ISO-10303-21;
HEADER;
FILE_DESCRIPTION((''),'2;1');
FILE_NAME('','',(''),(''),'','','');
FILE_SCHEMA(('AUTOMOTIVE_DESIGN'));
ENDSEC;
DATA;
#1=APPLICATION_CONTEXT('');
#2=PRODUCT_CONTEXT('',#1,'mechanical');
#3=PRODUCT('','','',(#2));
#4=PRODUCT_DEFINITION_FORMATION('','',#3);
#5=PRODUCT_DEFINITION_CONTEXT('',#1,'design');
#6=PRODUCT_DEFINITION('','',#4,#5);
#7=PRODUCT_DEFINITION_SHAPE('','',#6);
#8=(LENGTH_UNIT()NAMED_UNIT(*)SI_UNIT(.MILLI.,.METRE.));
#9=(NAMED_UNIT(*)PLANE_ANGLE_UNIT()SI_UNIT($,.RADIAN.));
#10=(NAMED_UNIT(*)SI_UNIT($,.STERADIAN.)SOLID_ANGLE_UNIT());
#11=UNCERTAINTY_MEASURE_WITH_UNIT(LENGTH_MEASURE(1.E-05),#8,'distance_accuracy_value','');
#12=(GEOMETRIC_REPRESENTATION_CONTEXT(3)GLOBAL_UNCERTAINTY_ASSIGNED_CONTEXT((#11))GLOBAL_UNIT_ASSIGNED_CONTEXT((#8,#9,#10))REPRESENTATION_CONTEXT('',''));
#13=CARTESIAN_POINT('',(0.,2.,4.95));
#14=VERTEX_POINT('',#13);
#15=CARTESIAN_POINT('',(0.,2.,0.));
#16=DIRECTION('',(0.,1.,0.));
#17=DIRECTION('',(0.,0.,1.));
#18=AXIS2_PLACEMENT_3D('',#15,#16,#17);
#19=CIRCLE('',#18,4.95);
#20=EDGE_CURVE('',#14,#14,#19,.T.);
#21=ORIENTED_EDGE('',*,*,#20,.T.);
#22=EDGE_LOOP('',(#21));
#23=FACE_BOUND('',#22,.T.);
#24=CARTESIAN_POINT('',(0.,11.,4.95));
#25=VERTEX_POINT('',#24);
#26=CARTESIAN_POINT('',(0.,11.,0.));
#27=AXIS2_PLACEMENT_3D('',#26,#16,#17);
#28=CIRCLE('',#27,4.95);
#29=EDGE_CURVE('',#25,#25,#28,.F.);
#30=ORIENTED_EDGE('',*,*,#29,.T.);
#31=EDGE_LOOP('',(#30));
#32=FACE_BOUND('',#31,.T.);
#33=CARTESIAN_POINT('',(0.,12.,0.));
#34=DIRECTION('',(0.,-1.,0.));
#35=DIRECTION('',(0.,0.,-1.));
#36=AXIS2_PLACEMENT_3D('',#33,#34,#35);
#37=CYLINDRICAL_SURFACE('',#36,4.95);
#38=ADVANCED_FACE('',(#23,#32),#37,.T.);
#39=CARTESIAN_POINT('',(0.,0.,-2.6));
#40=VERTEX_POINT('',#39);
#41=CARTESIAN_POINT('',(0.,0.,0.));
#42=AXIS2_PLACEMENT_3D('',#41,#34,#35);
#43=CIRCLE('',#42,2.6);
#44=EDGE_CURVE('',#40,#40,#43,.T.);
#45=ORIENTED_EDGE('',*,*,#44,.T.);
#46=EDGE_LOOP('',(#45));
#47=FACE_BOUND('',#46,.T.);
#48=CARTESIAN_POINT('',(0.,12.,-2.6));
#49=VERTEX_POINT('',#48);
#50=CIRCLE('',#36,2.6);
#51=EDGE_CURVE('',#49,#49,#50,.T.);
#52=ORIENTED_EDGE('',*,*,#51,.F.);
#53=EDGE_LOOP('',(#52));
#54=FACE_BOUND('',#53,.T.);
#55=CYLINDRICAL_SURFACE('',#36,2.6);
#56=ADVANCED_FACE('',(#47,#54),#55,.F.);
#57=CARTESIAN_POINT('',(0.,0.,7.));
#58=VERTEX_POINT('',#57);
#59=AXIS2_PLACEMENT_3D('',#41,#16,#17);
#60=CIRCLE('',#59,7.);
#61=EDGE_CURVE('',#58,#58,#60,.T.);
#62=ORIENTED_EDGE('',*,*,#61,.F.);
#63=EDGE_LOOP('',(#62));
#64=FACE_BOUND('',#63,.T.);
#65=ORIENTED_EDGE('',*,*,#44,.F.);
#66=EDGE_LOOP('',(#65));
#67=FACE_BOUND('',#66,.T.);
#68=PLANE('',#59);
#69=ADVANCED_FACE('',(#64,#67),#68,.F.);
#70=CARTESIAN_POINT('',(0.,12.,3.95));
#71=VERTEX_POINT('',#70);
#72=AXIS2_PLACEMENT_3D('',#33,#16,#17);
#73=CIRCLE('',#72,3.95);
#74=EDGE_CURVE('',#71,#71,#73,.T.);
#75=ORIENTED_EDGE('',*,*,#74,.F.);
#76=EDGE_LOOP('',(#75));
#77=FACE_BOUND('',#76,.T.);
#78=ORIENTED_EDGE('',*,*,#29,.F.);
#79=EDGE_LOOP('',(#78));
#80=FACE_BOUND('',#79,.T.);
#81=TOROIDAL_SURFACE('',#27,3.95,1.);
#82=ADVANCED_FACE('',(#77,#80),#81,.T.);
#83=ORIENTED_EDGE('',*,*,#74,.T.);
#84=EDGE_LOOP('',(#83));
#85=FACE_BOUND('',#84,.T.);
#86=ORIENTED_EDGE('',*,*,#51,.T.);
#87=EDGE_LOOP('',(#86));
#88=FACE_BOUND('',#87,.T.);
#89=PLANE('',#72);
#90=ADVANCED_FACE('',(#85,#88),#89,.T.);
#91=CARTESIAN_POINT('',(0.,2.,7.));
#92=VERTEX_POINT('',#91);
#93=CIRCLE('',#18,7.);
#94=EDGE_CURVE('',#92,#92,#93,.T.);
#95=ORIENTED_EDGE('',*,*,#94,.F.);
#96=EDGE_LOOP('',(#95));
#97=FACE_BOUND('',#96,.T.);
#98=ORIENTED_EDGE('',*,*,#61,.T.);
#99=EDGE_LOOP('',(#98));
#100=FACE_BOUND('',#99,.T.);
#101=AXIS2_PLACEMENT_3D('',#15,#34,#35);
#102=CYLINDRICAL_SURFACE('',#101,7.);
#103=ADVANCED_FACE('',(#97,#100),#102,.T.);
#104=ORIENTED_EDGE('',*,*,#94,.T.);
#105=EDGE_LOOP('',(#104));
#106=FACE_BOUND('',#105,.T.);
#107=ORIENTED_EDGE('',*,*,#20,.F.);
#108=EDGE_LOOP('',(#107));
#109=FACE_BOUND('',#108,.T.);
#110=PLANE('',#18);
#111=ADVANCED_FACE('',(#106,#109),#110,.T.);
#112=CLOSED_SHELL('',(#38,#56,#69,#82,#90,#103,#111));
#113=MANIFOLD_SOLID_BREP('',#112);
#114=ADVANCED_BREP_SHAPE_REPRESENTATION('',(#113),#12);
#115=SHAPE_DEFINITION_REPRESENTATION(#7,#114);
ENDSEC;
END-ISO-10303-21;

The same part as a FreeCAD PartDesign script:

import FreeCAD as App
import Part
import Sketcher
from FreeCAD import Vector


def edges_at(feature, points):
    """Names of the edges that pass closest to the given points."""
    edges = feature.Shape.Edges
    near = lambda p: min(range(len(edges)), key=lambda i: edges[i].distToShape(Part.Vertex(*p))[0])
    return sorted({f"Edge{near(p) + 1}" for p in points})

doc = App.newDocument("Part")
body = doc.addObject("PartDesign::Body", "Body")

# Sketch on XZ plane
sketch1 = body.newObject("Sketcher::SketchObject", "Sketch")
sketch1.AttachmentSupport = (doc.getObject("XZ_Plane"), [""])
sketch1.MapMode = "FlatFace"
sketch1.addGeometry(Part.Circle(Vector(0, 0, 0), Vector(0, 0, 1), 7), False)
sketch1.addConstraint([
    Sketcher.Constraint("Coincident", 0, 3, -1, 1),
    Sketcher.Constraint("Diameter", 0, 14.0),
])
pad1 = body.newObject("PartDesign::Pad", "Pad")
pad1.Profile = sketch1
pad1.Length = 2
pad1.Reversed = True

# Sketch on XZ plane
sketch2 = body.newObject("Sketcher::SketchObject", "Sketch001")
sketch2.AttachmentSupport = (doc.getObject("XZ_Plane"), [""])
sketch2.MapMode = "FlatFace"
sketch2.AttachmentOffset = App.Placement(Vector(0, 0, -2), App.Rotation())
sketch2.addGeometry(Part.Circle(Vector(0, 0, 0), Vector(0, 0, 1), 5), False)
sketch2.addConstraint([
    Sketcher.Constraint("Coincident", 0, 3, -1, 1),
    Sketcher.Constraint("Diameter", 0, 9.9),
])
pad2 = body.newObject("PartDesign::Pad", "Pad001")
pad2.Profile = sketch2
pad2.Length = 10
pad2.Reversed = True

# Sketch on XZ plane
sketch3 = body.newObject("Sketcher::SketchObject", "Sketch002")
sketch3.AttachmentSupport = (doc.getObject("XZ_Plane"), [""])
sketch3.MapMode = "FlatFace"
sketch3.addGeometry(Part.Circle(Vector(0, 0, 0), Vector(0, 0, 1), 2.6), False)
sketch3.addConstraint([
    Sketcher.Constraint("Coincident", 0, 3, -1, 1),
    Sketcher.Constraint("Diameter", 0, 5.2),
])
pocket1 = body.newObject("PartDesign::Pocket", "Pocket")
pocket1.Profile = sketch3
pocket1.Type = "ThroughAll"
doc.recompute()

fillet = body.newObject("PartDesign::Fillet", "Fillet")
fillet.Base = (pocket1, edges_at(pocket1, [(-4.95, 12, 0)]))
fillet.Radius = 1

doc.recompute()
